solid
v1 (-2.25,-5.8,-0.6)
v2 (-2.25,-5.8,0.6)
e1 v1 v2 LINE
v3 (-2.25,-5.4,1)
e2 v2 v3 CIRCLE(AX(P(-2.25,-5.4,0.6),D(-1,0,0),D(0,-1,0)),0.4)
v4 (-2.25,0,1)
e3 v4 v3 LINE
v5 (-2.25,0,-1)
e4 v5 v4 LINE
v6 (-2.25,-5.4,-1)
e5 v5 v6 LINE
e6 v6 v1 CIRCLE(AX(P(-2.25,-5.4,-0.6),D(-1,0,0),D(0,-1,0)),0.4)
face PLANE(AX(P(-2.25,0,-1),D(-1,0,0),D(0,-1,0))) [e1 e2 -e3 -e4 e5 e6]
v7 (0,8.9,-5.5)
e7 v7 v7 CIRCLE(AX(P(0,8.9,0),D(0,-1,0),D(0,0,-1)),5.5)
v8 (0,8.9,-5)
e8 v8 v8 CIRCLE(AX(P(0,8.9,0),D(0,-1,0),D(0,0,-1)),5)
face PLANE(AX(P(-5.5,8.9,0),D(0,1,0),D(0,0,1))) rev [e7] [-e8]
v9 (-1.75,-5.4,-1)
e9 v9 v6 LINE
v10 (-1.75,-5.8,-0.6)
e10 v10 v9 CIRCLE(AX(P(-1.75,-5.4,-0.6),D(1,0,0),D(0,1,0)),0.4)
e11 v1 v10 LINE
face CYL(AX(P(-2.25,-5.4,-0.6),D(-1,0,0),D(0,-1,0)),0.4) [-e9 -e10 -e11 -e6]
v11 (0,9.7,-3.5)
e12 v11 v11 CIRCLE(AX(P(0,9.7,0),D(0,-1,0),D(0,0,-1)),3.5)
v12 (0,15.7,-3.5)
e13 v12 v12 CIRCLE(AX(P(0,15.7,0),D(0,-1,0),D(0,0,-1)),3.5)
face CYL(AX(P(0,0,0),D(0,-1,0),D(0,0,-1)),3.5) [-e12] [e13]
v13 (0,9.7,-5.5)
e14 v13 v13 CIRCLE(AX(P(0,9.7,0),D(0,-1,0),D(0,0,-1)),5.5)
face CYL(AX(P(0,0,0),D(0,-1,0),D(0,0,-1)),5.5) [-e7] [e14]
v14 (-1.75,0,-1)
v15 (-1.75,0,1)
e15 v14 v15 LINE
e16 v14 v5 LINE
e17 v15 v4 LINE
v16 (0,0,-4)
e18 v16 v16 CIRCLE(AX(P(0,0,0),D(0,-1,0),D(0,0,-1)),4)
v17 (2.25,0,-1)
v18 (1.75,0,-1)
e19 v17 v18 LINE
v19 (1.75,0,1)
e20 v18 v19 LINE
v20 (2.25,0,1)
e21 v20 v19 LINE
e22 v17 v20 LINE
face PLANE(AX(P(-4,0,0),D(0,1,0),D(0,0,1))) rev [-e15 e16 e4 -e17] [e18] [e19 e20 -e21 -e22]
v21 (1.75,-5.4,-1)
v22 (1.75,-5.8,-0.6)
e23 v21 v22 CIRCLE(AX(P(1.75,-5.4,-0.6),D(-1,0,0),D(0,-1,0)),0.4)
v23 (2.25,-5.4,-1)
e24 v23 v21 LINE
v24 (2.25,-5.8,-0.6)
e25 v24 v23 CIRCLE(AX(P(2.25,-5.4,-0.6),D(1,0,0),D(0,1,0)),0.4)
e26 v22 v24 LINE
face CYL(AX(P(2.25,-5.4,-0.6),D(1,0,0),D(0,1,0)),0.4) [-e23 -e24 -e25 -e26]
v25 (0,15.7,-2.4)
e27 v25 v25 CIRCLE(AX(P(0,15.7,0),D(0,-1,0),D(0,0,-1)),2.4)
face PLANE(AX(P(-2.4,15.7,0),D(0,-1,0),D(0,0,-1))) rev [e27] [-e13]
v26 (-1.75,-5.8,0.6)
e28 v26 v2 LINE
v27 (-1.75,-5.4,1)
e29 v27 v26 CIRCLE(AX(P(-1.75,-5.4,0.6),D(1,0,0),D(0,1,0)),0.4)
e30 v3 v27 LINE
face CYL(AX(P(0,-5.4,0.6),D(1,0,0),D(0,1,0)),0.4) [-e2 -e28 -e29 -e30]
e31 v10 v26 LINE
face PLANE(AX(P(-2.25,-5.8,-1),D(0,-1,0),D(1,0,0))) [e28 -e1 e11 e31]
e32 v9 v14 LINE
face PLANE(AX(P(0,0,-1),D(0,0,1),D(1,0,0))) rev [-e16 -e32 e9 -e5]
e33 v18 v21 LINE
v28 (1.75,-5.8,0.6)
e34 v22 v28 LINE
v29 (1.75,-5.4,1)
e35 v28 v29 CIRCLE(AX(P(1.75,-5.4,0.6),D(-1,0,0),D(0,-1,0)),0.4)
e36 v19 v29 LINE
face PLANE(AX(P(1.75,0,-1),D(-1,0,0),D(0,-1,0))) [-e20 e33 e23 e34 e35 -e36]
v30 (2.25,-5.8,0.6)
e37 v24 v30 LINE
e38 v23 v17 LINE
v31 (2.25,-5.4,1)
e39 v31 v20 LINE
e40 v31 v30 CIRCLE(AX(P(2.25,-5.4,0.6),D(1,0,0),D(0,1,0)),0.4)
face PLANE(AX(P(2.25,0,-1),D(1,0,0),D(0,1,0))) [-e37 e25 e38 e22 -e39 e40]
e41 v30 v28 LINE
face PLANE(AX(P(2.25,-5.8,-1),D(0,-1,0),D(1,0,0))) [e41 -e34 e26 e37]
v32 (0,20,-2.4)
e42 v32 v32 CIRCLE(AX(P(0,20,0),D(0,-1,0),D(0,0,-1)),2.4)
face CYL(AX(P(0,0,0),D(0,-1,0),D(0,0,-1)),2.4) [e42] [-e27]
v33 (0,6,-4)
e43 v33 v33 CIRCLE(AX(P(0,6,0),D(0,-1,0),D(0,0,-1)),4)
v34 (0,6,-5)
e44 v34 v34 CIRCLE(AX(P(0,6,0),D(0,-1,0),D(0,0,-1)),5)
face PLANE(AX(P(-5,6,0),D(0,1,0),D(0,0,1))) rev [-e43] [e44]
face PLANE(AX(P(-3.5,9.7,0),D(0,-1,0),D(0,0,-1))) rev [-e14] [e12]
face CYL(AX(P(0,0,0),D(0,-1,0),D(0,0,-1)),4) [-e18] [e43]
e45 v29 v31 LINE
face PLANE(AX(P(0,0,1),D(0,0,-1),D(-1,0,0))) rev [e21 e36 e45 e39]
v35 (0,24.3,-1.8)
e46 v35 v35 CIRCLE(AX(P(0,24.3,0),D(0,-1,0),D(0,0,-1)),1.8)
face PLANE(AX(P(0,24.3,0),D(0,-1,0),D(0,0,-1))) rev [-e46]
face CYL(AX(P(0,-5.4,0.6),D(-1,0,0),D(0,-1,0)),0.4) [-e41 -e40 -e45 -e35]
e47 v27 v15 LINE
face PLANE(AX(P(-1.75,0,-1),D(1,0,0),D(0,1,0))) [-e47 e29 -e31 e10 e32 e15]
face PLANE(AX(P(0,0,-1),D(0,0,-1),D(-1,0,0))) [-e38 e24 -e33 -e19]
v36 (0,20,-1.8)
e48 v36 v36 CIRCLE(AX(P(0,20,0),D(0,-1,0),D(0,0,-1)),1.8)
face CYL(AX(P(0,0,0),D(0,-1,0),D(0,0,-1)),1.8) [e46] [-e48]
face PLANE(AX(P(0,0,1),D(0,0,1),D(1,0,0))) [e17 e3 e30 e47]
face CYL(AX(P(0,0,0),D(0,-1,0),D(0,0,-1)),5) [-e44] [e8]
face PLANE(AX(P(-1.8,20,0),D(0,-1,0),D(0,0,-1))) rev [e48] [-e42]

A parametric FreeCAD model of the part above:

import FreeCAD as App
import Part
import Sketcher
from FreeCAD import Vector
Q = App.Units.Quantity


def edges_at(feature, points):
    """Names of the edges that pass closest to the given points."""
    edges = feature.Shape.Edges
    near = lambda p: min(range(len(edges)), key=lambda i: edges[i].distToShape(Part.Vertex(*p))[0])
    return sorted({f"Edge{near(p) + 1}" for p in points})


def add_polygon(sketch, points):
    """Adds a closed chain of lines whose ends are joined by coincident constraints."""
    first, n = sketch.GeometryCount, len(points)
    for a, b in zip(points, points[1:] + points[:1]):
        sketch.addGeometry(Part.LineSegment(App.Vector(*a, 0), App.Vector(*b, 0)), False)
    for i in range(n):
        sketch.addConstraint(Sketcher.Constraint("Coincident", first + i, 2, first + (i + 1) % n, 1))

doc = App.newDocument("Part")
body = doc.addObject("PartDesign::Body", "Body")

# Sketch on XY plane
sketch1 = body.newObject("Sketcher::SketchObject", "Sketch")
sketch1.AttachmentSupport = (doc.getObject("XY_Plane"), [""])
sketch1.MapMode = "FlatFace"
add_polygon(sketch1, [(0, 0), (0, 24.3), (-1.8, 24.3), (-1.8, 20), (-2.4, 20), (-2.4, 15.7), (-3.5, 15.7), (-3.5, 9.7), (-5.5, 9.7), (-5.5, 8.9), (-5, 8.9), (-5, 6), (-4, 6), (-4, 0)])  # lines 0-13
sketch1.addConstraint(Sketcher.Constraint("Vertical", 0))
sketch1.addConstraint(Sketcher.Constraint("Horizontal", 1))
sketch1.addConstraint(Sketcher.Constraint("Vertical", 2))
sketch1.addConstraint(Sketcher.Constraint("Horizontal", 3))
sketch1.addConstraint(Sketcher.Constraint("Vertical", 4))
sketch1.addConstraint(Sketcher.Constraint("Horizontal", 5))
sketch1.addConstraint(Sketcher.Constraint("Vertical", 6))
sketch1.addConstraint(Sketcher.Constraint("Horizontal", 7))
sketch1.addConstraint(Sketcher.Constraint("Vertical", 8))
sketch1.addConstraint(Sketcher.Constraint("Horizontal", 9))
sketch1.addConstraint(Sketcher.Constraint("Vertical", 10))
sketch1.addConstraint(Sketcher.Constraint("Horizontal", 11))
sketch1.addConstraint(Sketcher.Constraint("Vertical", 12))
sketch1.addConstraint(Sketcher.Constraint("Horizontal", 13))
sketch1.addConstraint(Sketcher.Constraint("Coincident", 13, 2, -1, 1))
sketch1.addConstraint(Sketcher.Constraint("Equal", 2, 4))
sketch1.addConstraint(Sketcher.Constraint("Equal", 6, 12))
sketch1.addConstraint(Sketcher.Constraint("DistanceX", 7, 2, 7, 1, Q("2 mm")))
sketch1.addConstraint(Sketcher.Constraint("DistanceX", 11, 1, 11, 2, Q("1 mm")))
sketch1.addConstraint(Sketcher.Constraint("DistanceX", 13, 1, 13, 2, Q("4 mm")))
sketch1.addConstraint(Sketcher.Constraint("DistanceY", 6, 2, 6, 1, Q("6 mm")))
sketch1.addConstraint(Sketcher.Constraint("DistanceX", 1, 2, 1, 1, Q("1.8 mm")))
sketch1.addConstraint(Sketcher.Constraint("DistanceX", 3, 2, 3, 1, Q("0.6 mm")))
sketch1.addConstraint(Sketcher.Constraint("DistanceX", 5, 2, 5, 1, Q("1.1 mm")))
sketch1.addConstraint(Sketcher.Constraint("DistanceY", 0, 1, 0, 2, Q("24.3 mm")))
sketch1.addConstraint(Sketcher.Constraint("DistanceY", 2, 2, 2, 1, Q("4.3 mm")))
sketch1.addConstraint(Sketcher.Constraint("DistanceY", 8, 2, 8, 1, Q("0.8 mm")))
revolution = body.newObject("PartDesign::Revolution", "Revolution")
revolution.Profile = sketch1
revolution.ReferenceAxis = (sketch1, ["V_Axis"])
revolution.Angle = 360

# Sketch on XY plane
sketch2 = body.newObject("Sketcher::SketchObject", "Sketch001")
sketch2.AttachmentSupport = (doc.getObject("XY_Plane"), [""])
sketch2.MapMode = "FlatFace"
add_polygon(sketch2, [(-2.2, 0), (-2.2, -5.8), (-1.8, -5.8), (-1.8, 0)])  # lines 0-3
add_polygon(sketch2, [(1.8, 0), (1.8, -5.8), (2.2, -5.8), (2.2, 0)])  # lines 4-7
sketch2.addConstraint(Sketcher.Constraint("Vertical", 0))
sketch2.addConstraint(Sketcher.Constraint("Horizontal", 1))
sketch2.addConstraint(Sketcher.Constraint("Vertical", 2))
sketch2.addConstraint(Sketcher.Constraint("Horizontal", 3))
sketch2.addConstraint(Sketcher.Constraint("Vertical", 4))
sketch2.addConstraint(Sketcher.Constraint("Horizontal", 5))
sketch2.addConstraint(Sketcher.Constraint("Vertical", 6))
sketch2.addConstraint(Sketcher.Constraint("Horizontal", 7))
sketch2.addConstraint(Sketcher.Constraint("Symmetric", 3, 2, 6, 2, -1, 1))
sketch2.addConstraint(Sketcher.Constraint("Symmetric", 1, 2, 4, 2, -2))
sketch2.addConstraint(Sketcher.Constraint("PointOnObject", 2, 2, -1))
sketch2.addConstraint(Sketcher.Constraint("DistanceX", 1, 1, 1, 2, Q("0.5 mm")))
sketch2.addConstraint(Sketcher.Constraint("DistanceY", 0, 2, 0, 1, Q("5.8 mm")))
sketch2.addConstraint(Sketcher.Constraint("DistanceX", 0, 2, 4, 2, Q("4 mm")))
pad1 = body.newObject("PartDesign::Pad", "Pad")
pad1.Profile = sketch2
pad1.Type = "TwoLengths"
pad1.Length = 1
pad1.Length2 = 1
doc.recompute()

fillet = body.newObject("PartDesign::Fillet", "Fillet")
fillet.Base = (pad1, edges_at(pad1, [
    (-2, -5.8, -1),
    (-2, -5.8, 1),
    (2, -5.8, -1),
    (2, -5.8, 1),
]))
fillet.Radius = 0.4

doc.recompute()
